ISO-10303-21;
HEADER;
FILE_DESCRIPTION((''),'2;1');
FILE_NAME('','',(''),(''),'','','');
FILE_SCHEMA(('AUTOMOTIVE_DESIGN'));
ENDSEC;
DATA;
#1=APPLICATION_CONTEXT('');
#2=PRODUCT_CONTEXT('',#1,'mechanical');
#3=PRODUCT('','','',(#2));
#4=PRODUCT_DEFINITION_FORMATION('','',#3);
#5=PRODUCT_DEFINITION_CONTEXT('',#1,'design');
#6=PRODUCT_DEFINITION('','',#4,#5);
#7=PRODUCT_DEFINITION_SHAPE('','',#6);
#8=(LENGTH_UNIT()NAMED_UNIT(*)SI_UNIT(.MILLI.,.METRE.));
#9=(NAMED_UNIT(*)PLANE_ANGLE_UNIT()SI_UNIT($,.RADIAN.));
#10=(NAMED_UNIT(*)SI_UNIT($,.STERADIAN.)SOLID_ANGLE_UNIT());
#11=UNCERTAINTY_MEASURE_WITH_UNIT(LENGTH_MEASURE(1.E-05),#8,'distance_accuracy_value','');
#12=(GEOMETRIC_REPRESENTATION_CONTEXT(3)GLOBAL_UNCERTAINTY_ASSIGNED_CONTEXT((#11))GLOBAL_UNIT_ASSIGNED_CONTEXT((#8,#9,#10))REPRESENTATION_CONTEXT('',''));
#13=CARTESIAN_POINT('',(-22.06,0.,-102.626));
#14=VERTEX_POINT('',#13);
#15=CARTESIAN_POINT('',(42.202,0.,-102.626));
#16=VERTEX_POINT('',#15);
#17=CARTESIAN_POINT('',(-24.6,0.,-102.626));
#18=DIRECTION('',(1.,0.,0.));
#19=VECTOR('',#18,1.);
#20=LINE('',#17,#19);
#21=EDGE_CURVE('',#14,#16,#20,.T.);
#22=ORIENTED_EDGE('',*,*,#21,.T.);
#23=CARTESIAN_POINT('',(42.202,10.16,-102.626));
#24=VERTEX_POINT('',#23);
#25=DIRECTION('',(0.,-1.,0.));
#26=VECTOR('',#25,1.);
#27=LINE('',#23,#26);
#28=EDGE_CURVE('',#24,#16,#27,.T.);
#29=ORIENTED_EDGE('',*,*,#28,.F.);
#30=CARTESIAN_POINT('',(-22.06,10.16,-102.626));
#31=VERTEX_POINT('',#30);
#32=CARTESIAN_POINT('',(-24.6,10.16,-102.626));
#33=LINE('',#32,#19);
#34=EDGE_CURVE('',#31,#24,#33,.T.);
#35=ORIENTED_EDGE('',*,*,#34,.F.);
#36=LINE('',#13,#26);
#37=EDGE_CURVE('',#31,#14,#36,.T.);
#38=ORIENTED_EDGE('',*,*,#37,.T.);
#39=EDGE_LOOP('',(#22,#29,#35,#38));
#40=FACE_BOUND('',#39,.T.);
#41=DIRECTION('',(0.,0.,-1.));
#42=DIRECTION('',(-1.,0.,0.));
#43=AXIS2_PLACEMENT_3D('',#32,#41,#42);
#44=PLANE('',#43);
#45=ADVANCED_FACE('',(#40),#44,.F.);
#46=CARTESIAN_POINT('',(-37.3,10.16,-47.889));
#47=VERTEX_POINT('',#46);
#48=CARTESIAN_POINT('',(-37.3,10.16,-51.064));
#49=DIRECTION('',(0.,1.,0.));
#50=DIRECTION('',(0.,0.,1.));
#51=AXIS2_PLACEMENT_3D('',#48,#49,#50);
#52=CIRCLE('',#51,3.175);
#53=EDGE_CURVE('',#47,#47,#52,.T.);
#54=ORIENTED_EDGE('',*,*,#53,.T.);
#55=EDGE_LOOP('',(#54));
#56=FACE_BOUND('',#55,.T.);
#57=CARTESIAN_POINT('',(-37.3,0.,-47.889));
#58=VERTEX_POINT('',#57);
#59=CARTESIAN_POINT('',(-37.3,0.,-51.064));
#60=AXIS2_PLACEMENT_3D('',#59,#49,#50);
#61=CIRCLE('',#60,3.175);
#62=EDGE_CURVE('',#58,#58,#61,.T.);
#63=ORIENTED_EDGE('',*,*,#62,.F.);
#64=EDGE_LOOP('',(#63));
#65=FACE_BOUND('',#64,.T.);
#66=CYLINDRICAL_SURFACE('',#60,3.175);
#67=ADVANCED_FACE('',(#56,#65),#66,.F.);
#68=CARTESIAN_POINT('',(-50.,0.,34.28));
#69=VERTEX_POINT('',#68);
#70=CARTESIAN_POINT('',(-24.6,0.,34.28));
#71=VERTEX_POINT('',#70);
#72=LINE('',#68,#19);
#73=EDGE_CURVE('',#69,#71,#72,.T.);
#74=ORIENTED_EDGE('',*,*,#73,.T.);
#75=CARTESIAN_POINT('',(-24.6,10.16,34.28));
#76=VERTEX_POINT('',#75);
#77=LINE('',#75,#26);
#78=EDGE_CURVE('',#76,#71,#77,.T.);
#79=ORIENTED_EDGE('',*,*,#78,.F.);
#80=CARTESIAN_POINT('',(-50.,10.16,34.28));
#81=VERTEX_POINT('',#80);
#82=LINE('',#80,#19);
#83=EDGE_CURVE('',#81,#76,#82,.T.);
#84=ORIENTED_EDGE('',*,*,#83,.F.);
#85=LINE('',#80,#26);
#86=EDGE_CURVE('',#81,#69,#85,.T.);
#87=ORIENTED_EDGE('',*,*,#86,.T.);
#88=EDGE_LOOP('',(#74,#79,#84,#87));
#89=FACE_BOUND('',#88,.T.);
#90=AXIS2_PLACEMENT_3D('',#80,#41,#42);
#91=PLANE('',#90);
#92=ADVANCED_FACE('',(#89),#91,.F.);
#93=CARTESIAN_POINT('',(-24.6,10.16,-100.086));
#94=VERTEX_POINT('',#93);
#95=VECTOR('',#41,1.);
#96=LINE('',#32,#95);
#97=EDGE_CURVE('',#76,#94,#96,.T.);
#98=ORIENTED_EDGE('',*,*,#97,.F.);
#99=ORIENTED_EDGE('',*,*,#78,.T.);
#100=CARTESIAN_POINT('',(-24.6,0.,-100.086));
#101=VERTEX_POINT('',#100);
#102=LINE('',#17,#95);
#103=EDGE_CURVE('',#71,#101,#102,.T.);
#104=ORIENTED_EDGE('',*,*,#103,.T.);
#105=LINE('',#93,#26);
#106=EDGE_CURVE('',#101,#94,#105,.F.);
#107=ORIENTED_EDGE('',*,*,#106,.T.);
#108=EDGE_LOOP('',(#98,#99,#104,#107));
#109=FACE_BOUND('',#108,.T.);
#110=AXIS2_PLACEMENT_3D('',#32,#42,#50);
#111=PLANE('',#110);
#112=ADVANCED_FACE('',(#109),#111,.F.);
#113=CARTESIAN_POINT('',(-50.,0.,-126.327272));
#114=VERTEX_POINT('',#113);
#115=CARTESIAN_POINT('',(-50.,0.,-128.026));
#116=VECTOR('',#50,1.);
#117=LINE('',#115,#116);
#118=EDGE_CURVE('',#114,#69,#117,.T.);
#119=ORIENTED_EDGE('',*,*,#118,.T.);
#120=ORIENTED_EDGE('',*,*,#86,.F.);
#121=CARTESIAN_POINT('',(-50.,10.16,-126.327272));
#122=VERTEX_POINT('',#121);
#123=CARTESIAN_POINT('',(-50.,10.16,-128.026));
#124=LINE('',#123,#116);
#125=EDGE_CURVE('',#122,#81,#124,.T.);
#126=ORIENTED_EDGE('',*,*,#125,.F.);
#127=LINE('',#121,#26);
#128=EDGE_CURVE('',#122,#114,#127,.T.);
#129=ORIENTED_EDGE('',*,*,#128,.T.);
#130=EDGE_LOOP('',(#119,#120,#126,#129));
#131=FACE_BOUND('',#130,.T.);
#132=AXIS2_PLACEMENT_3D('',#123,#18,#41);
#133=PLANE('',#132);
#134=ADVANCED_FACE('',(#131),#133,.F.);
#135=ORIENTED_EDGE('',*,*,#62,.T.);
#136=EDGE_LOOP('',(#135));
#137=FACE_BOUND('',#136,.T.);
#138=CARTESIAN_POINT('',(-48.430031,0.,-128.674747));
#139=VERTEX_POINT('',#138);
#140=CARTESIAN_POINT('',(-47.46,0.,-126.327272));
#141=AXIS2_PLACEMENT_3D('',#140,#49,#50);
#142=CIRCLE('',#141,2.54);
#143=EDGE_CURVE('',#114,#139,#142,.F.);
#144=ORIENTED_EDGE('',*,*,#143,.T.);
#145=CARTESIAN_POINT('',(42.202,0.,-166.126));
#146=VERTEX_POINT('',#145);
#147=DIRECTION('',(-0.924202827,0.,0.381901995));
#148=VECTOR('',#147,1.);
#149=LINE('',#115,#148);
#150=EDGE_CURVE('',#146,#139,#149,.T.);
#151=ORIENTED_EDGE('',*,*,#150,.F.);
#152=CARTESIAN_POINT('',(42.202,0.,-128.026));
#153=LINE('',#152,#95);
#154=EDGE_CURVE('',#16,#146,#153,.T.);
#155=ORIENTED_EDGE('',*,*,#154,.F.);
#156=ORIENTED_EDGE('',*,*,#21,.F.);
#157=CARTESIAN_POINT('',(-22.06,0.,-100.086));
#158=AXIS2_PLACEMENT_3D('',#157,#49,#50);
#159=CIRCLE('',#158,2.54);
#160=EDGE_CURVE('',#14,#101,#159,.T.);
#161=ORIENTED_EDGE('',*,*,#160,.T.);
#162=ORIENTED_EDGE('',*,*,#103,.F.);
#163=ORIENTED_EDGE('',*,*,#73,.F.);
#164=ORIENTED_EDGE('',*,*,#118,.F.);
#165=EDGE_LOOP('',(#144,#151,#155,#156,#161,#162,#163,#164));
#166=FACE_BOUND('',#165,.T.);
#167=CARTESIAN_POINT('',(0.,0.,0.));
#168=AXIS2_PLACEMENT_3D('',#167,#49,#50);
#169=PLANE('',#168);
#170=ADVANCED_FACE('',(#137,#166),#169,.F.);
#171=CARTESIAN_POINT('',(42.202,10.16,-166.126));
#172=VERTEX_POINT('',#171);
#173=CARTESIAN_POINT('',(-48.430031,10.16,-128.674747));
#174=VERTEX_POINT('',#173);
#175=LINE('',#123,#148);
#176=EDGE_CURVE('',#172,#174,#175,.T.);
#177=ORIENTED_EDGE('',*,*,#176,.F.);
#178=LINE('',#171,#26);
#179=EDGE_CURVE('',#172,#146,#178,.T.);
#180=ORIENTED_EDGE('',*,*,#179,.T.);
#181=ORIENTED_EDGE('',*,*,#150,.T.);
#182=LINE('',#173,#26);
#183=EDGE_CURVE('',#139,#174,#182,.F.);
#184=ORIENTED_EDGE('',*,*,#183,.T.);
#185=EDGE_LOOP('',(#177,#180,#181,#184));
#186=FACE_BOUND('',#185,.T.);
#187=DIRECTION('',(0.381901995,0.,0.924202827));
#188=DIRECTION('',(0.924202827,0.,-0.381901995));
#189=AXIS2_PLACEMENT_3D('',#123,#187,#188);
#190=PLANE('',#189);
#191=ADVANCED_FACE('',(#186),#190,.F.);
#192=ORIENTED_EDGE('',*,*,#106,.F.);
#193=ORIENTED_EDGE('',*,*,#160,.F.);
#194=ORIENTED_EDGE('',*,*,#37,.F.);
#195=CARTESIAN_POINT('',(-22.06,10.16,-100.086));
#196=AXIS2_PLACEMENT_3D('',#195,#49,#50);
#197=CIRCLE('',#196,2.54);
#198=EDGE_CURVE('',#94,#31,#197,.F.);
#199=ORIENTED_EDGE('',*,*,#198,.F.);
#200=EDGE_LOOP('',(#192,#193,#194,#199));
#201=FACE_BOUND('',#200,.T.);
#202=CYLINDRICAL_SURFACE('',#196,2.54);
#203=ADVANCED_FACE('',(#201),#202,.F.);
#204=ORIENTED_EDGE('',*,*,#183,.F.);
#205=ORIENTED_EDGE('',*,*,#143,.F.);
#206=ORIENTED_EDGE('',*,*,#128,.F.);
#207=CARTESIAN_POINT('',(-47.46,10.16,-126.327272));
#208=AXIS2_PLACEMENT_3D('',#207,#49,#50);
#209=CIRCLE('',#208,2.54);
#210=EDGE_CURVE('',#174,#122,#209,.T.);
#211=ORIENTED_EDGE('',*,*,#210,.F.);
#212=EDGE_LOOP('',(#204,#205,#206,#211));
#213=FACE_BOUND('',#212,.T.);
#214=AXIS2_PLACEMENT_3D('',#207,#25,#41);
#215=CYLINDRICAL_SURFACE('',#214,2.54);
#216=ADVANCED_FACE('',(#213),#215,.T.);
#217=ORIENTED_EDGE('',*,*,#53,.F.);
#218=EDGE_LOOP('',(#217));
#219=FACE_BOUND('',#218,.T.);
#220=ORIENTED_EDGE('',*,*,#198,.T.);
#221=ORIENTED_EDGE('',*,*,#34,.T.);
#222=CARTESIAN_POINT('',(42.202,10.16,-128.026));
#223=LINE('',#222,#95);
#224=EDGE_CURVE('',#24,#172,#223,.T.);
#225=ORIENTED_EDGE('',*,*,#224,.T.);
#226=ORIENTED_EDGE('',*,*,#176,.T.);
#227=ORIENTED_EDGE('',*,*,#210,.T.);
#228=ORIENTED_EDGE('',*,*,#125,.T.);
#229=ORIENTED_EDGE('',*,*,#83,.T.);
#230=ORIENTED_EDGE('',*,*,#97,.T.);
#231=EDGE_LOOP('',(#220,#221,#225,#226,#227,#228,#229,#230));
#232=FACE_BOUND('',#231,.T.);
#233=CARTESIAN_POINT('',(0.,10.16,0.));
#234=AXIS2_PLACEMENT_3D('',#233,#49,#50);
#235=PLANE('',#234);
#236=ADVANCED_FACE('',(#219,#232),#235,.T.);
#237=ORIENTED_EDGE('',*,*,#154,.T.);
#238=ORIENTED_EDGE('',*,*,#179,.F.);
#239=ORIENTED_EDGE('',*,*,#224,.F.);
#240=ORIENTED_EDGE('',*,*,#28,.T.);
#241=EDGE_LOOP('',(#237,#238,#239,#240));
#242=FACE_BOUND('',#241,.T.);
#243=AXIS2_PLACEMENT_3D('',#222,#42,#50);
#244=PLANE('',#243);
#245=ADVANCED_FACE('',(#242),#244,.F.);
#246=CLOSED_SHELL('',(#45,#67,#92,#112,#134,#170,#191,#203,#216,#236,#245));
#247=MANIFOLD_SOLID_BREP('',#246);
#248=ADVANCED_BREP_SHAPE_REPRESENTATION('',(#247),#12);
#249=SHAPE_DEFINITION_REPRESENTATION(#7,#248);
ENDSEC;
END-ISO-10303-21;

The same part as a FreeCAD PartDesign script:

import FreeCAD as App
import Part
import Sketcher
from FreeCAD import Vector
Q = App.Units.Quantity


def edges_at(feature, points):
    """Names of the edges that pass closest to the given points."""
    edges = feature.Shape.Edges
    near = lambda p: min(range(len(edges)), key=lambda i: edges[i].distToShape(Part.Vertex(*p))[0])
    return sorted({f"Edge{near(p) + 1}" for p in points})


def add_polygon(sketch, points):
    """Adds a closed chain of lines whose ends are joined by coincident constraints."""
    first, n = sketch.GeometryCount, len(points)
    for a, b in zip(points, points[1:] + points[:1]):
        sketch.addGeometry(Part.LineSegment(App.Vector(*a, 0), App.Vector(*b, 0)), False)
    for i in range(n):
        sketch.addConstraint(Sketcher.Constraint("Coincident", first + i, 2, first + (i + 1) % n, 1))

doc = App.newDocument("Part")
body = doc.addObject("PartDesign::Body", "Body")

sketch1 = body.newObject("Sketcher::SketchObject", "Sketch")
sketch1.AttachmentSupport = (doc.getObject("XZ_Plane"), [""])
sketch1.MapMode = "FlatFace"
add_polygon(sketch1, [(42, -166), (-50, -128), (-50, 34), (-25, 34), (-25, -103), (42, -103)])
sketch1.addConstraint([
    Sketcher.Constraint("Vertical", 1),
    Sketcher.Constraint("Horizontal", 2),
    Sketcher.Constraint("Vertical", 3),
    Sketcher.Constraint("Horizontal", 4),
    Sketcher.Constraint("Vertical", 5),
    Sketcher.Constraint("DistanceX", 2, 1, 2, 2, Q("1 in")),
    Sketcher.Constraint("DistanceY", 5, 2, 5, 1, Q("2.5 in")),
    Sketcher.Constraint("DistanceY", 0, 2, 3, 2, Q("1 in")),
    Sketcher.Constraint("DistanceX", 4, 1, 4, 2, Q("2.63 in")),
    Sketcher.Constraint("DistanceY", 1, 1, 1, 2, Q("6.39 in")),
    Sketcher.Constraint("DistanceX", 0, 2, -1, 1, Q("50 mm")),
    Sketcher.Constraint("DistanceY", 0, 2, -1, 1, Q("128.026 mm")),
])
pad1 = body.newObject("PartDesign::Pad", "Pad")
pad1.Profile = sketch1
pad1.Length = Q("0.4 in")
pad1.Reversed = True

sketch2 = body.newObject("Sketcher::SketchObject", "Sketch001")
sketch2.AttachmentSupport = (doc.getObject("XZ_Plane"), [""])
sketch2.MapMode = "FlatFace"
sketch2.AttachmentOffset = App.Placement(Vector(0, 0, -0.4 * 25.4), App.Rotation())
sketch2.addGeometry(Part.Circle(Vector(-37.3, -51.1, 0), Vector(0, 0, 1), 3.2), False)
sketch2.addConstraint([
    Sketcher.Constraint("Diameter", 0, Q("0.25 in")),
    Sketcher.Constraint("DistanceX", 0, 3, -1, 1, Q("37.3 mm")),
    Sketcher.Constraint("DistanceY", 0, 3, -1, 1, Q("51.064 mm")),
])
pocket1 = body.newObject("PartDesign::Pocket", "Pocket")
pocket1.Profile = sketch2
pocket1.Length = Q("0.4 in")
pocket1.Reversed = True
doc.recompute()

fillet = body.newObject("PartDesign::Fillet", "Fillet")
fillet.Base = (pocket1, edges_at(pocket1, [(-50, 5.08, -128.026), (-24.6, 5.08, -102.626)]))
fillet.Radius = Q("0.1 in")

doc.recompute()
